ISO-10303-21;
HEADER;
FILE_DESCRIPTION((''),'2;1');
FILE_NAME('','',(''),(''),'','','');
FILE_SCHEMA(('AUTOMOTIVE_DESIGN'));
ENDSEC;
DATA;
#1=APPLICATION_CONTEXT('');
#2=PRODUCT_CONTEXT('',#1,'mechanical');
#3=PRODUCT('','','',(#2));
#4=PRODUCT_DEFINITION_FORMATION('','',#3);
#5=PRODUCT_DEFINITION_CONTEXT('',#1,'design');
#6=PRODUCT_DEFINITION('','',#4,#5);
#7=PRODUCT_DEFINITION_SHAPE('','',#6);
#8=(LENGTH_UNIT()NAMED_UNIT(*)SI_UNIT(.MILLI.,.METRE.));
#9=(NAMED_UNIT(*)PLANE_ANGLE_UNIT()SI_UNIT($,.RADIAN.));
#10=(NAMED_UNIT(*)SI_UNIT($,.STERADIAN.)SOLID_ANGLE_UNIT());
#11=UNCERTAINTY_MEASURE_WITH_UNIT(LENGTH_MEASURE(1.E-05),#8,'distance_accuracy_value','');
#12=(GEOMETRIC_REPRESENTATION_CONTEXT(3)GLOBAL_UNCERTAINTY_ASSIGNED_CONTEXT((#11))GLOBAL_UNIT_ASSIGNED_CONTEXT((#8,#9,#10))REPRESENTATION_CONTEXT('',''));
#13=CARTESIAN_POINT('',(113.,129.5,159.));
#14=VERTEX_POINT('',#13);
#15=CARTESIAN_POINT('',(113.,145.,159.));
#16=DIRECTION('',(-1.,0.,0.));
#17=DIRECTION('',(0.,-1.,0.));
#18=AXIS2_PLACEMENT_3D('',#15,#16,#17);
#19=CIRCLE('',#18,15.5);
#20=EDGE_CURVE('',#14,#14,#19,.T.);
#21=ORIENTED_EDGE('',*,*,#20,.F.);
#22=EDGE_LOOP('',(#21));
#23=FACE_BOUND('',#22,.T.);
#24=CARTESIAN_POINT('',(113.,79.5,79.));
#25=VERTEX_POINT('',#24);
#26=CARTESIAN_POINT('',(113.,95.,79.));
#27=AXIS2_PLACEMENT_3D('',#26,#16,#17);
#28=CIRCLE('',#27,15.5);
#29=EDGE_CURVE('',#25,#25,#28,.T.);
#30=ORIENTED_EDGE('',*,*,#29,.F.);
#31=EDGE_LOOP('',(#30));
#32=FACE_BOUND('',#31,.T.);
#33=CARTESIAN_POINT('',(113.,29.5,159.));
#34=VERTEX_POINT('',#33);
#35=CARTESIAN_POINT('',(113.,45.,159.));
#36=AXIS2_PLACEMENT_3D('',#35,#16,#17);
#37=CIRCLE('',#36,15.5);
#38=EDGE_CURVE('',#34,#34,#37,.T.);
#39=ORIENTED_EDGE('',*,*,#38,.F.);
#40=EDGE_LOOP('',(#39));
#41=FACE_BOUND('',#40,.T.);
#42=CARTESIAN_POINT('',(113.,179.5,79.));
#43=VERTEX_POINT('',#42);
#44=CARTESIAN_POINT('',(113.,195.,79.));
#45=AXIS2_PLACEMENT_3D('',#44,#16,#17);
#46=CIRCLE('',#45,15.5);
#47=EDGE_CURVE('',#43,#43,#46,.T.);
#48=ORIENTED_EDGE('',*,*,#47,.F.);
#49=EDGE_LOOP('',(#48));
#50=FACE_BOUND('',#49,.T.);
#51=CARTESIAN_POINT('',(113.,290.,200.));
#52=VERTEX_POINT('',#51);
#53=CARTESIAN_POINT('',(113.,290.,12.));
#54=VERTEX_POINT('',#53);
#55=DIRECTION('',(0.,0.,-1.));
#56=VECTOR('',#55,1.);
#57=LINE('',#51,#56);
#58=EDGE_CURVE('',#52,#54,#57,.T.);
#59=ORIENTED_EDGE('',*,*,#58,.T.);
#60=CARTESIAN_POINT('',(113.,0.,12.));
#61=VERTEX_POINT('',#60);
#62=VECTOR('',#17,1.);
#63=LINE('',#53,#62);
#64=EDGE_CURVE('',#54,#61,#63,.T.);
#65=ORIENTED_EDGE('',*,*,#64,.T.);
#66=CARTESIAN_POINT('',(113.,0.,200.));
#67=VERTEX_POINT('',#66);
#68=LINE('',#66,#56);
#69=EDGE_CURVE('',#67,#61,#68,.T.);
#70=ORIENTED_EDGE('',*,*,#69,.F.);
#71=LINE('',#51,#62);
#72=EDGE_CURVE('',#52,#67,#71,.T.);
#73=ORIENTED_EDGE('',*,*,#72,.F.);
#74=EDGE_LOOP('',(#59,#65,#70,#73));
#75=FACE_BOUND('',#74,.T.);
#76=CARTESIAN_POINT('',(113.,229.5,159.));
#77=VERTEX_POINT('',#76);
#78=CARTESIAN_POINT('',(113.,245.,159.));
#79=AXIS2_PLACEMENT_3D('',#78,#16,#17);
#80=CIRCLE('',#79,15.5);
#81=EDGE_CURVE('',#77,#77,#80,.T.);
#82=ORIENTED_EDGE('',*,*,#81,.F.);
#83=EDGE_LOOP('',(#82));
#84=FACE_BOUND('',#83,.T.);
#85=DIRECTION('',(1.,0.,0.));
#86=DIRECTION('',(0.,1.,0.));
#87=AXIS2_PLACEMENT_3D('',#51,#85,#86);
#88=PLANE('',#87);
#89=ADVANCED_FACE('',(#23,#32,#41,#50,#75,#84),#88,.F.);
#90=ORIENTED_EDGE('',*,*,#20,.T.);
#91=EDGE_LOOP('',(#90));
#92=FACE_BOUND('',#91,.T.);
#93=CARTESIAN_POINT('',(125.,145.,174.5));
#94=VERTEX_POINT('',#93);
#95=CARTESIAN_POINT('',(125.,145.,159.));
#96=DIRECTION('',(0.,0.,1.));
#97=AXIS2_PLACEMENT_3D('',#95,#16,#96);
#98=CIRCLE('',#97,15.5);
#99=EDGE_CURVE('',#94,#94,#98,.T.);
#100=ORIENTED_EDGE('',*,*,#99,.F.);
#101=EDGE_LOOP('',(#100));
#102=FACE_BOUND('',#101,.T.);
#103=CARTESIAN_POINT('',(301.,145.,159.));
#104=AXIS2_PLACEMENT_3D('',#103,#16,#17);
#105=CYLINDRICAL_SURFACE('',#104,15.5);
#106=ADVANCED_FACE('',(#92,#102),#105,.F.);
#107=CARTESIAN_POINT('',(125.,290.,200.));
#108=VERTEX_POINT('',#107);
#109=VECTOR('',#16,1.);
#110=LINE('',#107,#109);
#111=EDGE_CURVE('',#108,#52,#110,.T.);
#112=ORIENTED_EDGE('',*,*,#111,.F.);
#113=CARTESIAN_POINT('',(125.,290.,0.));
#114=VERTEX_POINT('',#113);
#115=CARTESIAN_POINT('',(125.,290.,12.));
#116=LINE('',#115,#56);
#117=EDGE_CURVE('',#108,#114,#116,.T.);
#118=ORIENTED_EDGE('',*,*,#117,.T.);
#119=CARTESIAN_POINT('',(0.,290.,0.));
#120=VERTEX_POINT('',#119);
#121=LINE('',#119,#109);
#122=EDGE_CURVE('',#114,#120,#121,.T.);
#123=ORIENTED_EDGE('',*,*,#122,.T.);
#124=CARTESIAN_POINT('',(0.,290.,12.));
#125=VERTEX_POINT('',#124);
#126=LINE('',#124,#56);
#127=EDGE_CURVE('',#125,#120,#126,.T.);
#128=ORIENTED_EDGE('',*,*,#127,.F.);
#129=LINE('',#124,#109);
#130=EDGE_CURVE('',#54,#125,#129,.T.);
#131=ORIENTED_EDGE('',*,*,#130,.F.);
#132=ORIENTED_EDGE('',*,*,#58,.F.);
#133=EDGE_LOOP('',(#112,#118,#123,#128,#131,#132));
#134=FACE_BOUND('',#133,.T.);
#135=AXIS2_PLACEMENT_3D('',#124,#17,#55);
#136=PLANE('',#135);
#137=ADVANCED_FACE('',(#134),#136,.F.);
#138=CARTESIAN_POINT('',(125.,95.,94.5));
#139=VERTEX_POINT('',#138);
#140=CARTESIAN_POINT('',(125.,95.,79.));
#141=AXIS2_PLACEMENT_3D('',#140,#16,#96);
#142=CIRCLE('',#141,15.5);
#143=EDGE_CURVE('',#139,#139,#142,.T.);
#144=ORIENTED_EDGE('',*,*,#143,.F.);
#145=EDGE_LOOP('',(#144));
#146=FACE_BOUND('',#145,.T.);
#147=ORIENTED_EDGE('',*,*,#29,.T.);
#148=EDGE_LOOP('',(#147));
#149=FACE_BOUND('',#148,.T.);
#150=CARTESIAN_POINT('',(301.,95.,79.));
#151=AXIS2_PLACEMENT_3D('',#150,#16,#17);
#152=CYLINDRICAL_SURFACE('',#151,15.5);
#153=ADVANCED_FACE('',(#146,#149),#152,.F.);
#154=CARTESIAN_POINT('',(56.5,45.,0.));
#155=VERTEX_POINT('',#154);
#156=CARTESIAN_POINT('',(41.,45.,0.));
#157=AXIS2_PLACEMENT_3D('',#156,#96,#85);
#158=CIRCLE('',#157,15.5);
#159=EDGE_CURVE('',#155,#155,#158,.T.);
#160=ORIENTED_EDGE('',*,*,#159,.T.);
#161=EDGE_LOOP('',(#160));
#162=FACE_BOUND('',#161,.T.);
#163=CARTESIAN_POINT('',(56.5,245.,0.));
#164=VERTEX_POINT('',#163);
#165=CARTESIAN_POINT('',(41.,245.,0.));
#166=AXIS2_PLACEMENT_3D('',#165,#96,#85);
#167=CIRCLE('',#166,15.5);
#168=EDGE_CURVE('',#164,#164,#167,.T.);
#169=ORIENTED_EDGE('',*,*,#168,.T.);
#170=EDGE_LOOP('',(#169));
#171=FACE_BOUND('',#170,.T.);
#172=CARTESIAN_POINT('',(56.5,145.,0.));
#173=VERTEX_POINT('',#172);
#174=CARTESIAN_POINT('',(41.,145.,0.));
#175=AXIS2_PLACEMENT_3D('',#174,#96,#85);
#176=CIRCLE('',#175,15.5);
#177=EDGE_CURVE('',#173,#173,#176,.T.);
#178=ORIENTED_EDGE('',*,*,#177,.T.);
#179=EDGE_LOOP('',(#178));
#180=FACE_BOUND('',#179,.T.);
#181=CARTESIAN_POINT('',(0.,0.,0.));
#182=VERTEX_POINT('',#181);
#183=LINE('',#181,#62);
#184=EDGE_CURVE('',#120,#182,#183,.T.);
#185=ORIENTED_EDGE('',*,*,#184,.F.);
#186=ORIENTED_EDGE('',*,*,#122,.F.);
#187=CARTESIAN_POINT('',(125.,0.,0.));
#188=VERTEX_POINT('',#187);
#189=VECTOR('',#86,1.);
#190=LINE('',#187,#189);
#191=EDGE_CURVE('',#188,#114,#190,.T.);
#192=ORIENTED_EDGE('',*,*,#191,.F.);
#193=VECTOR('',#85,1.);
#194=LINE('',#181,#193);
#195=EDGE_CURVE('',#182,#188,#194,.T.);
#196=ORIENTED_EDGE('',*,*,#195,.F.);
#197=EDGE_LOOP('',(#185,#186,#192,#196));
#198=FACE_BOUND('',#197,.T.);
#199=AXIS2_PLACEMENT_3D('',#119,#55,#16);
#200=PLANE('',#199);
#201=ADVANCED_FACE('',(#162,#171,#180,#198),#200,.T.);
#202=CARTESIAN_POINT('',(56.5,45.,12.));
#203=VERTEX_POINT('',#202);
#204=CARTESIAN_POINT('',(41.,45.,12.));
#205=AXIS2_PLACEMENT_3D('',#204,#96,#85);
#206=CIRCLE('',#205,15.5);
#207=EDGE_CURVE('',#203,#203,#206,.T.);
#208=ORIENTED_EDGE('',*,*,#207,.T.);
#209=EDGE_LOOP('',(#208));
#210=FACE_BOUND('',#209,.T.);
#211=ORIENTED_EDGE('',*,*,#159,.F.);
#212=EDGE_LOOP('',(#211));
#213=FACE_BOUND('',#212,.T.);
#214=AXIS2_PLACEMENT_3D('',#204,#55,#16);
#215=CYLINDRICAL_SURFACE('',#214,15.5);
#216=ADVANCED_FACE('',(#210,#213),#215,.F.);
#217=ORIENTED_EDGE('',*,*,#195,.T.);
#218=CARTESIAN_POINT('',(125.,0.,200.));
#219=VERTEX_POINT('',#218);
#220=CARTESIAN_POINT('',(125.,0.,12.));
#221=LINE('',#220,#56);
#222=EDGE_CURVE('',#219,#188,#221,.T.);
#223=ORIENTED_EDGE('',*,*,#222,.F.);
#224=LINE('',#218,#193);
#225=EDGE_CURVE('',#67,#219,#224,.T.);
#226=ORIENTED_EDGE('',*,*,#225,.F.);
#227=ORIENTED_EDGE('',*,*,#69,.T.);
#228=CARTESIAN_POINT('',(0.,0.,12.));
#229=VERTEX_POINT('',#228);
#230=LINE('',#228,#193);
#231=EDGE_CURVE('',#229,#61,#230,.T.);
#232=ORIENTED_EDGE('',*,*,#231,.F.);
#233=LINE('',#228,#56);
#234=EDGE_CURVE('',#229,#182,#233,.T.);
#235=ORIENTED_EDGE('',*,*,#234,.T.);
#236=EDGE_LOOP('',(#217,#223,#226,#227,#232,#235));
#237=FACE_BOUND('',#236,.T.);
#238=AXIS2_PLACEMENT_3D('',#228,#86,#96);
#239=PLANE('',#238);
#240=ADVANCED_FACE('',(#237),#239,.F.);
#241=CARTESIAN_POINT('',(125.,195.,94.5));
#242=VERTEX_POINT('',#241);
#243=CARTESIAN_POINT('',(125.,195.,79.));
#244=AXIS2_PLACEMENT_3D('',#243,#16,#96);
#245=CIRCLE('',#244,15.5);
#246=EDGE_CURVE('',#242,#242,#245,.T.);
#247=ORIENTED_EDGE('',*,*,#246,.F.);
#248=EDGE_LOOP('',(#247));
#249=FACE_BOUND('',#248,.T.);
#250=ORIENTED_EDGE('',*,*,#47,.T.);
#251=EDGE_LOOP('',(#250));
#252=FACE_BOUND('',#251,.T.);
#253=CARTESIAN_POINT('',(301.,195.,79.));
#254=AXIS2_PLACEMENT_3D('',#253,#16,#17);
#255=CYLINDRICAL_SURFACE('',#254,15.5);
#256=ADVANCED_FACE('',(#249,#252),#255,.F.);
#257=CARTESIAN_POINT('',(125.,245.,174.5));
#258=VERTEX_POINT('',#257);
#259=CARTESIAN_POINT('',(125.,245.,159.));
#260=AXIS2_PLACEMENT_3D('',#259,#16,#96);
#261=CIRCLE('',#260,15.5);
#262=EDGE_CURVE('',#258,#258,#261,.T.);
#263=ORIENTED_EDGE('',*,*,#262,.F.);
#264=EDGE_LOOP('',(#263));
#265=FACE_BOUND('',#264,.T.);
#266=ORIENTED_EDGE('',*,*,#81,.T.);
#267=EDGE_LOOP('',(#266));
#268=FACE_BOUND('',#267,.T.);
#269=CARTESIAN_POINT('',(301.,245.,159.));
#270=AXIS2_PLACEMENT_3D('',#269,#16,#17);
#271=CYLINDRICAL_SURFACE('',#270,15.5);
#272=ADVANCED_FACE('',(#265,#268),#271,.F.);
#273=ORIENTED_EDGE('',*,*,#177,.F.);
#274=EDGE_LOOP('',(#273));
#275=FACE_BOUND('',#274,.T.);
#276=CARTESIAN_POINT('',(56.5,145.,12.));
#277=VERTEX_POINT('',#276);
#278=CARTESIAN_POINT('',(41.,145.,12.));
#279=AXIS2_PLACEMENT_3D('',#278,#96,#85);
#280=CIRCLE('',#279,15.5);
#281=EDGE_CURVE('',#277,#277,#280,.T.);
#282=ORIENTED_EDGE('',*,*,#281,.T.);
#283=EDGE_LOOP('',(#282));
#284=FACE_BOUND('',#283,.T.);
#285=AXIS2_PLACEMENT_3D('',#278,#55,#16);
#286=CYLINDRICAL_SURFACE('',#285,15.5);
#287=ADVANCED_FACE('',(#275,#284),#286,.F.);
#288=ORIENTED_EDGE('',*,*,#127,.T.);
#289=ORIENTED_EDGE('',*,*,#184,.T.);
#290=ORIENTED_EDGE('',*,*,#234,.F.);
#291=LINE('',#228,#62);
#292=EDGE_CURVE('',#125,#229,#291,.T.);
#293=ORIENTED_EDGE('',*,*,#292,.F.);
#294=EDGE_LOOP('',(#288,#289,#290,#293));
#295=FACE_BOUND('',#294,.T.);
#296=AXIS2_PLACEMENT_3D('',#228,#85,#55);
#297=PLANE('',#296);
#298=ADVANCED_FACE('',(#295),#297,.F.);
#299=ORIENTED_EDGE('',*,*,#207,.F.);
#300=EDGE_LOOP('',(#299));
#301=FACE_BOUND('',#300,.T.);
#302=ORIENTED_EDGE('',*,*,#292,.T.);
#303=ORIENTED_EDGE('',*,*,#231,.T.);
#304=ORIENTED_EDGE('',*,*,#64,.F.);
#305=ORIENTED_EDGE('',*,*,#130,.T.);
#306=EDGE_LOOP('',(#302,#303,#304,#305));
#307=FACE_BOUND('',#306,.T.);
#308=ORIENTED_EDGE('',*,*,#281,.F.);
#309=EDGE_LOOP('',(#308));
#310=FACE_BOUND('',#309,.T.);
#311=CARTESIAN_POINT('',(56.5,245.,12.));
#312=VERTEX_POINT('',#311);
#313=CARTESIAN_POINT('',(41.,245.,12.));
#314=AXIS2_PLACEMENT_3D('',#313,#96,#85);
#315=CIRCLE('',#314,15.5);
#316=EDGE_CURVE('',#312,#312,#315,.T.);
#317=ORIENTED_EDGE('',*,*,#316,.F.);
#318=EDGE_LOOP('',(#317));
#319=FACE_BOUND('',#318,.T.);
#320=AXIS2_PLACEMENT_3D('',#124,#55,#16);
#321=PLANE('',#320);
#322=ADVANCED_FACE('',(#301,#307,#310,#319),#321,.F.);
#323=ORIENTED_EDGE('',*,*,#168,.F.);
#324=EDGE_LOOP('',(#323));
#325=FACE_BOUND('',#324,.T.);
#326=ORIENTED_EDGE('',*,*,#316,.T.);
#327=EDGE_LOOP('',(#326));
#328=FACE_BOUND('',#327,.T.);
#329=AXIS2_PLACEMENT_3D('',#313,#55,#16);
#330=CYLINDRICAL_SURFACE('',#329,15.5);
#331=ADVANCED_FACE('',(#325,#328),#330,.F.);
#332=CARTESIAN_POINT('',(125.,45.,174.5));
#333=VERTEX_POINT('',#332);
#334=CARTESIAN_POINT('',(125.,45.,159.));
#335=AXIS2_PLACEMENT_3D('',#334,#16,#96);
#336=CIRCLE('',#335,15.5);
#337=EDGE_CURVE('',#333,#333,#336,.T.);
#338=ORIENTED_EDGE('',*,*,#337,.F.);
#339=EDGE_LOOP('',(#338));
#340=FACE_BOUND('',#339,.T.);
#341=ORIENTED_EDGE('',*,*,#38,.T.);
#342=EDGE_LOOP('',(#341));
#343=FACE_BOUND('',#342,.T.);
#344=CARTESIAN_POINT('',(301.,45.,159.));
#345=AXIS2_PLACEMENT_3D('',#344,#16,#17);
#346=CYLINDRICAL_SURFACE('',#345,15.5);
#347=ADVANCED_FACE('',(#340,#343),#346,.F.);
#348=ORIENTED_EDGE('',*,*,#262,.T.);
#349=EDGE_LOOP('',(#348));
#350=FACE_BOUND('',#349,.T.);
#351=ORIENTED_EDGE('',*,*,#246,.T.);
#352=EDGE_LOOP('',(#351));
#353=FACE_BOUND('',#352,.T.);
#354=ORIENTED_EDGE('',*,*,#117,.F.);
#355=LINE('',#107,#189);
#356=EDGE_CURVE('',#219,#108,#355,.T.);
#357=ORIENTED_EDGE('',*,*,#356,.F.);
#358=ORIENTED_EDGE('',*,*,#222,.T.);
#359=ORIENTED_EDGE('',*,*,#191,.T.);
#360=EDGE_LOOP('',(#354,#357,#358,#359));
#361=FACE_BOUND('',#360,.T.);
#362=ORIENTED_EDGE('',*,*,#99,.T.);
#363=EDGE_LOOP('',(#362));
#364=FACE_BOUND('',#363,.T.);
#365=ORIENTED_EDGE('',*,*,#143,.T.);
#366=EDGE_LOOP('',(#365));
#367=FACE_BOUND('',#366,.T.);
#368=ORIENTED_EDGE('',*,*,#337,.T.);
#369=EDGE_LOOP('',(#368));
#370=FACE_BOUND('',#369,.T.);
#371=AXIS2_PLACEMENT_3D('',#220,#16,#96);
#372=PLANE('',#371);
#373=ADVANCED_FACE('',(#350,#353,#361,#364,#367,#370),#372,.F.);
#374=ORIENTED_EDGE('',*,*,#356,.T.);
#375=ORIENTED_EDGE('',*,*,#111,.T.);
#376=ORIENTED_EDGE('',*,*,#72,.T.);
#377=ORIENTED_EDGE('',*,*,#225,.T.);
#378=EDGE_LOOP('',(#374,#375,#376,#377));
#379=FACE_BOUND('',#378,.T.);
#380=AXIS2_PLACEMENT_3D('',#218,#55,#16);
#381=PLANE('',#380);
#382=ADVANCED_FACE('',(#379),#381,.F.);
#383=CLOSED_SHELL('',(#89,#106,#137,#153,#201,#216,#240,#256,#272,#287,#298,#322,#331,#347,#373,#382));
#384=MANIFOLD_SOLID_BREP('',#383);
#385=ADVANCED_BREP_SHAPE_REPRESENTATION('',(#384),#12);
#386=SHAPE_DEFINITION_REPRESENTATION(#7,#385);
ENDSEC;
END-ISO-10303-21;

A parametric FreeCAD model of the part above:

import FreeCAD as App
import Part
import Sketcher

doc = App.newDocument("Part")
body = doc.addObject("PartDesign::Body", "Body")

# Sketch on XY plane
sketch1 = body.newObject("Sketcher::SketchObject", "Sketch")
sketch1.AttachmentSupport = (doc.getObject("XY_Plane"), [""])
sketch1.MapMode = "FlatFace"
sketch1.addGeometry(Part.LineSegment(App.Vector(0, 290, 0), App.Vector(0, 0, 0)), False)
sketch1.addGeometry(Part.LineSegment(App.Vector(0, 0, 0), App.Vector(125, 0, 0)), False)
sketch1.addGeometry(Part.LineSegment(App.Vector(125, 0, 0), App.Vector(125, 290, 0)), False)
sketch1.addGeometry(Part.LineSegment(App.Vector(125, 290, 0), App.Vector(0, 290, 0)), False)
sketch1.addGeometry(Part.Circle(App.Vector(41, 45, 0), App.Vector(0, 0, 1), 15.5), False)
sketch1.addGeometry(Part.Circle(App.Vector(41, 145, 0), App.Vector(0, 0, 1), 15.5), False)
sketch1.addGeometry(Part.Circle(App.Vector(41, 245, 0), App.Vector(0, 0, 1), 15.5), False)
sketch1.addConstraint(Sketcher.Constraint("Coincident", 0, 2, 1, 1))
sketch1.addConstraint(Sketcher.Constraint("Coincident", 1, 2, 2, 1))
sketch1.addConstraint(Sketcher.Constraint("Coincident", 2, 2, 3, 1))
sketch1.addConstraint(Sketcher.Constraint("Coincident", 3, 2, 0, 1))
sketch1.addConstraint(Sketcher.Constraint("Vertical", 0))
sketch1.addConstraint(Sketcher.Constraint("Horizontal", 1))
sketch1.addConstraint(Sketcher.Constraint("Vertical", 2))
sketch1.addConstraint(Sketcher.Constraint("Horizontal", 3))
sketch1.addConstraint(Sketcher.Constraint("Coincident", 0, 2, -1, 1))
sketch1.addConstraint(Sketcher.Constraint("Equal", 4, 5))
sketch1.addConstraint(Sketcher.Constraint("Equal", 5, 6))
sketch1.addConstraint(Sketcher.Constraint("Vertical", 4, 3, 5, 3))
sketch1.addConstraint(Sketcher.Constraint("Vertical", 5, 3, 6, 3))
sketch1.addConstraint(Sketcher.Constraint("Diameter", 4, 31.0))
sketch1.addConstraint(Sketcher.Constraint("DistanceX", 1, 1, 1, 2, 125.0))
sketch1.addConstraint(Sketcher.Constraint("DistanceY", 0, 2, 0, 1, 290.0))
sketch1.addConstraint(Sketcher.Constraint("DistanceX", -1, 1, 4, 3, 41.0))
sketch1.addConstraint(Sketcher.Constraint("DistanceY", -1, 1, 4, 3, 45.0))
sketch1.addConstraint(Sketcher.Constraint("DistanceY", -1, 1, 5, 3, 145.0))
sketch1.addConstraint(Sketcher.Constraint("DistanceY", -1, 1, 6, 3, 245.0))
pad1 = body.newObject("PartDesign::Pad", "Pad")
pad1.Profile = sketch1
pad1.Length = 12

# Sketch on XY plane
sketch2 = body.newObject("Sketcher::SketchObject", "Sketch001")
sketch2.AttachmentSupport = (doc.getObject("XY_Plane"), [""])
sketch2.MapMode = "FlatFace"
sketch2.AttachmentOffset = App.Placement(App.Vector(0, 0, 12), App.Rotation())
sketch2.addGeometry(Part.LineSegment(App.Vector(113, 290, 0), App.Vector(113, 0, 0)), False)
sketch2.addGeometry(Part.LineSegment(App.Vector(113, 0, 0), App.Vector(125, 0, 0)), False)
sketch2.addGeometry(Part.LineSegment(App.Vector(125, 0, 0), App.Vector(125, 290, 0)), False)
sketch2.addGeometry(Part.LineSegment(App.Vector(125, 290, 0), App.Vector(113, 290, 0)), False)
sketch2.addConstraint(Sketcher.Constraint("Coincident", 0, 2, 1, 1))
sketch2.addConstraint(Sketcher.Constraint("Coincident", 1, 2, 2, 1))
sketch2.addConstraint(Sketcher.Constraint("Coincident", 2, 2, 3, 1))
sketch2.addConstraint(Sketcher.Constraint("Coincident", 3, 2, 0, 1))
sketch2.addConstraint(Sketcher.Constraint("Vertical", 0))
sketch2.addConstraint(Sketcher.Constraint("Horizontal", 1))
sketch2.addConstraint(Sketcher.Constraint("Vertical", 2))
sketch2.addConstraint(Sketcher.Constraint("Horizontal", 3))
sketch2.addConstraint(Sketcher.Constraint("PointOnObject", 0, 2, -1))
sketch2.addConstraint(Sketcher.Constraint("DistanceX", 1, 1, 1, 2, 12.0))
sketch2.addConstraint(Sketcher.Constraint("DistanceY", 0, 2, 0, 1, 290.0))
sketch2.addConstraint(Sketcher.Constraint("DistanceX", -1, 1, 0, 2, 113.0))
pad2 = body.newObject("PartDesign::Pad", "Pad001")
pad2.Profile = sketch2
pad2.Length = 188

# Sketch on YZ plane
sketch3 = body.newObject("Sketcher::SketchObject", "Sketch002")
sketch3.AttachmentSupport = (doc.getObject("YZ_Plane"), [""])
sketch3.MapMode = "FlatFace"
sketch3.AttachmentOffset = App.Placement(App.Vector(0, 0, 113), App.Rotation())
sketch3.addGeometry(Part.Circle(App.Vector(45, 159, 0), App.Vector(0, 0, 1), 15.5), False)
sketch3.addGeometry(Part.Circle(App.Vector(145, 159, 0), App.Vector(0, 0, 1), 15.5), False)
sketch3.addGeometry(Part.Circle(App.Vector(245, 159, 0), App.Vector(0, 0, 1), 15.5), False)
sketch3.addGeometry(Part.Circle(App.Vector(95, 79, 0), App.Vector(0, 0, 1), 15.5), False)
sketch3.addGeometry(Part.Circle(App.Vector(195, 79, 0), App.Vector(0, 0, 1), 15.5), False)
sketch3.addConstraint(Sketcher.Constraint("Equal", 0, 1))
sketch3.addConstraint(Sketcher.Constraint("Equal", 1, 2))
sketch3.addConstraint(Sketcher.Constraint("Equal", 2, 3))
sketch3.addConstraint(Sketcher.Constraint("Equal", 3, 4))
sketch3.addConstraint(Sketcher.Constraint("Horizontal", 0, 3, 1, 3))
sketch3.addConstraint(Sketcher.Constraint("Horizontal", 1, 3, 2, 3))
sketch3.addConstraint(Sketcher.Constraint("Horizontal", 3, 3, 4, 3))
sketch3.addConstraint(Sketcher.Constraint("Diameter", 0, 31.0))
sketch3.addConstraint(Sketcher.Constraint("DistanceX", -1, 1, 0, 3, 45.0))
sketch3.addConstraint(Sketcher.Constraint("DistanceY", -1, 1, 0, 3, 159.0))
sketch3.addConstraint(Sketcher.Constraint("DistanceX", -1, 1, 1, 3, 145.0))
sketch3.addConstraint(Sketcher.Constraint("DistanceX", -1, 1, 2, 3, 245.0))
sketch3.addConstraint(Sketcher.Constraint("DistanceX", -1, 1, 3, 3, 95.0))
sketch3.addConstraint(Sketcher.Constraint("DistanceY", -1, 1, 3, 3, 79.0))
sketch3.addConstraint(Sketcher.Constraint("DistanceX", -1, 1, 4, 3, 195.0))
pocket1 = body.newObject("PartDesign::Pocket", "Pocket")
pocket1.Profile = sketch3
pocket1.Length = 188
pocket1.Reversed = True

doc.recompute()
